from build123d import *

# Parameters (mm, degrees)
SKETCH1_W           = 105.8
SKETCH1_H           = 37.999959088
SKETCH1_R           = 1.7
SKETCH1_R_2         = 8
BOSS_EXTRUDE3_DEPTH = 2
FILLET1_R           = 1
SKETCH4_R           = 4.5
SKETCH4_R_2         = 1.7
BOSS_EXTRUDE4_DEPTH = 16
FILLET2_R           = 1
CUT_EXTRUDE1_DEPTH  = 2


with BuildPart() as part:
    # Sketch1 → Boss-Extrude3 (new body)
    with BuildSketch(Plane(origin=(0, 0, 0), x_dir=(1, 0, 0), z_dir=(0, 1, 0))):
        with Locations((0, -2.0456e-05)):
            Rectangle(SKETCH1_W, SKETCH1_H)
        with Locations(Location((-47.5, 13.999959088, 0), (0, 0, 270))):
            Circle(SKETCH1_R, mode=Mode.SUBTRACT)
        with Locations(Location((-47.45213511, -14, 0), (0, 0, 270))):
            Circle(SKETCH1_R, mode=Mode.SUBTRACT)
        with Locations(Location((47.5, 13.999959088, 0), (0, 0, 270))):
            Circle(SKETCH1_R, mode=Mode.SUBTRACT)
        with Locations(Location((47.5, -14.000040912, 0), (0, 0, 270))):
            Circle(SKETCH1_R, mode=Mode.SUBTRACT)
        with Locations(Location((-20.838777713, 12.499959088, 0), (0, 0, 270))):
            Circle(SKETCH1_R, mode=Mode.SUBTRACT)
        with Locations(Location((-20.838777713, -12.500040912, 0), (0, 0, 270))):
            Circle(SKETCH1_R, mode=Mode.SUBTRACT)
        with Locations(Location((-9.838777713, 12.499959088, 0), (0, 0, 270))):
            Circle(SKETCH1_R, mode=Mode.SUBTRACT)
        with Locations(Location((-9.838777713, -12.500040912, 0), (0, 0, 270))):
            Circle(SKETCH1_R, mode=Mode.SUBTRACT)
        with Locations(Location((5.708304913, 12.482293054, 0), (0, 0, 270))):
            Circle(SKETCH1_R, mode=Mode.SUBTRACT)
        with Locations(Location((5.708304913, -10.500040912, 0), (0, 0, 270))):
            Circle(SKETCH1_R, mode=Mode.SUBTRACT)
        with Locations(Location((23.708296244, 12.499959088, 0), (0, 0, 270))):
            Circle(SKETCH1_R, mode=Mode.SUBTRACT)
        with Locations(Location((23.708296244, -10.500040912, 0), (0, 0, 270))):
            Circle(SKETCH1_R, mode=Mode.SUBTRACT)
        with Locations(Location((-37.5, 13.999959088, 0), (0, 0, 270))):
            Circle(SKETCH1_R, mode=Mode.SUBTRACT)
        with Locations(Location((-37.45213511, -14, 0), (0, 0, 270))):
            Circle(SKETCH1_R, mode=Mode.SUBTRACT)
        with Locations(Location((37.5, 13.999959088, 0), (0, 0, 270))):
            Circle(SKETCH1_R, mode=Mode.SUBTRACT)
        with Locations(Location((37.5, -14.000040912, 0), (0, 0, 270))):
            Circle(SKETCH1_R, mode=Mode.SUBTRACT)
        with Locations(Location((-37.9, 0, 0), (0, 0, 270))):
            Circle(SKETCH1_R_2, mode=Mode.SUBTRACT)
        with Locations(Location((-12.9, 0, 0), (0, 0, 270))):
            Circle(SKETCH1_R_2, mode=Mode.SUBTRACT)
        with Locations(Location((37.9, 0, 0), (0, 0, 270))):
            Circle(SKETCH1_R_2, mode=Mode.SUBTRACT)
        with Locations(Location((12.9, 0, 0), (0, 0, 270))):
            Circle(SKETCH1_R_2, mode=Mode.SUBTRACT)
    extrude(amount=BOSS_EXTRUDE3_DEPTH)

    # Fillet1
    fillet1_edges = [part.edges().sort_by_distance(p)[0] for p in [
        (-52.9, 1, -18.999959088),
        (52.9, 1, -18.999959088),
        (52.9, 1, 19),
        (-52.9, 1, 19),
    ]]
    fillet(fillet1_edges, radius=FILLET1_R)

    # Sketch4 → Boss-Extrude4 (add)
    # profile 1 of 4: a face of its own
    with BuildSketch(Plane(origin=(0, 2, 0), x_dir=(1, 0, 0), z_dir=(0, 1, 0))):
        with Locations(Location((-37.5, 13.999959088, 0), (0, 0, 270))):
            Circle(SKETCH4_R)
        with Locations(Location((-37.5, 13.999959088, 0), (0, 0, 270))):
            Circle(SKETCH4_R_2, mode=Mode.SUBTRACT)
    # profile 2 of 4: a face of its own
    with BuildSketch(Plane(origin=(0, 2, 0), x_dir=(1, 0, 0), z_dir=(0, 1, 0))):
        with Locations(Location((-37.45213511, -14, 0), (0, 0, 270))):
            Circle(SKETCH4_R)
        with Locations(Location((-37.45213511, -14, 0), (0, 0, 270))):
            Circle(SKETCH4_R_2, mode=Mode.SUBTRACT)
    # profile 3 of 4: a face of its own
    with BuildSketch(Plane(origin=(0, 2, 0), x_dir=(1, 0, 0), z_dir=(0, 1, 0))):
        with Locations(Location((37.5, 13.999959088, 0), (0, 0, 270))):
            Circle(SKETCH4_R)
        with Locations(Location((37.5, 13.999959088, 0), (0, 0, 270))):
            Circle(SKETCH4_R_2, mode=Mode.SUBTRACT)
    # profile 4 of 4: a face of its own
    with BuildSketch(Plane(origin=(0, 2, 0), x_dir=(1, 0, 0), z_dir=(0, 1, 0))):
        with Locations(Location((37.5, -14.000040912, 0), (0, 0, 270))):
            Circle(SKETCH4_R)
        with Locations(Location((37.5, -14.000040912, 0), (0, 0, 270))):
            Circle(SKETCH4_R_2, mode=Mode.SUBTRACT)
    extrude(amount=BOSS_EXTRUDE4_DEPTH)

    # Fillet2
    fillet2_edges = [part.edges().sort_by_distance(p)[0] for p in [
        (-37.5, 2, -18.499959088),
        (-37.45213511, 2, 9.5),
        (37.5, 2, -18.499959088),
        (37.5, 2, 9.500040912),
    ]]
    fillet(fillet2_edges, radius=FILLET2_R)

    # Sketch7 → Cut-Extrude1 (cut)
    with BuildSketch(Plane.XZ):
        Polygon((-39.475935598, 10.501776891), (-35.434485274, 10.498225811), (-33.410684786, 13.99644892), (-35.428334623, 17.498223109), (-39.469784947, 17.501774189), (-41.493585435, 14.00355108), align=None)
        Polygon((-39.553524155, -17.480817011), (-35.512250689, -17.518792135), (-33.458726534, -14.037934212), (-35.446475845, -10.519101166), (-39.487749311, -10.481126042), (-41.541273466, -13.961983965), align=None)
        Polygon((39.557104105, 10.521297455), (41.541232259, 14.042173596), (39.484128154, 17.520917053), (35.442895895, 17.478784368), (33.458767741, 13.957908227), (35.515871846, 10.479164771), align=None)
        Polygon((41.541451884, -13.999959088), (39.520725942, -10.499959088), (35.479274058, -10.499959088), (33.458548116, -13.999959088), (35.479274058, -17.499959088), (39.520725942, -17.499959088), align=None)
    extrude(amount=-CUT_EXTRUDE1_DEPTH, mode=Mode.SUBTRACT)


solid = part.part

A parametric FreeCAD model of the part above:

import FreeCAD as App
import Part
import Sketcher
from FreeCAD import Vector
Q = App.Units.Quantity


def edges_at(feature, points):
    """Names of the edges that pass closest to the given points."""
    edges = feature.Shape.Edges
    near = lambda p: min(range(len(edges)), key=lambda i: edges[i].distToShape(Part.Vertex(*p))[0])
    return sorted({f"Edge{near(p) + 1}" for p in points})


def add_polygon(sketch, points):
    """Adds a closed chain of lines whose ends are joined by coincident constraints."""
    first, n = sketch.GeometryCount, len(points)
    for a, b in zip(points, points[1:] + points[:1]):
        sketch.addGeometry(Part.LineSegment(App.Vector(*a, 0), App.Vector(*b, 0)), False)
    for i in range(n):
        sketch.addConstraint(Sketcher.Constraint("Coincident", first + i, 2, first + (i + 1) % n, 1))

doc = App.newDocument("Part")
params = doc.addObject("Spreadsheet::Sheet", "Params")
for row, (alias, value) in enumerate([
    ("sketch1_diameter", "16 mm"),
    ("sketch1_diameter2", "3.4 mm"),
    ("sketch1_width", "105.8 mm"),
    ("pad1_length", "2 mm"),
    ("fillet_radius", "1 mm"),
    ("sketch2_diameter", "9 mm"),
    ("sketch2_diameter2", "3.4 mm"),
    ("pad2_length", "16 mm"),
    ("fillet2_radius", "1 mm"),
    ("pocket1_length", "2 mm"),
], start=1):
    params.set(f"A{row}", alias)
    params.set(f"B{row}", "=" + value)
    params.setAlias(f"B{row}", alias)

body = doc.addObject("PartDesign::Body", "Body")

sketch1 = body.newObject("Sketcher::SketchObject", "Sketch")
sketch1.AttachmentSupport = (doc.getObject("XZ_Plane"), [""])
sketch1.MapMode = "FlatFace"
add_polygon(sketch1, [(-52.9, -19), (-52.9, 19), (52.9, 19), (52.9, -19)])
sketch1.addGeometry(Part.Circle(Vector(-47.5, 14, 0), Vector(0, 0, 1), 1.7), False)
sketch1.addGeometry(Part.Circle(Vector(-37.5, 14, 0), Vector(0, 0, 1), 1.7), False)
sketch1.addGeometry(Part.Circle(Vector(-20.8, 12.5, 0), Vector(0, 0, 1), 1.7), False)
sketch1.addGeometry(Part.Circle(Vector(-9.8, 12.5, 0), Vector(0, 0, 1), 1.7), False)
sketch1.addGeometry(Part.Circle(Vector(5.7, 10.5, 0), Vector(0, 0, 1), 1.7), False)
sketch1.addGeometry(Part.Circle(Vector(23.7, 10.5, 0), Vector(0, 0, 1), 1.7), False)
sketch1.addGeometry(Part.Circle(Vector(37.5, 14, 0), Vector(0, 0, 1), 1.7), False)
sketch1.addGeometry(Part.Circle(Vector(47.5, 14, 0), Vector(0, 0, 1), 1.7), False)
sketch1.addGeometry(Part.Circle(Vector(-37.9, 0, 0), Vector(0, 0, 1), 8), False)
sketch1.addGeometry(Part.Circle(Vector(-12.9, 0, 0), Vector(0, 0, 1), 8), False)
sketch1.addGeometry(Part.Circle(Vector(-47.5, -14, 0), Vector(0, 0, 1), 1.7), False)
sketch1.addGeometry(Part.Circle(Vector(-37.5, -14, 0), Vector(0, 0, 1), 1.7), False)
sketch1.addGeometry(Part.Circle(Vector(-20.8, -12.5, 0), Vector(0, 0, 1), 1.7), False)
sketch1.addGeometry(Part.Circle(Vector(-9.8, -12.5, 0), Vector(0, 0, 1), 1.7), False)
sketch1.addGeometry(Part.Circle(Vector(12.9, 0, 0), Vector(0, 0, 1), 8), False)
sketch1.addGeometry(Part.Circle(Vector(37.9, 0, 0), Vector(0, 0, 1), 8), False)
sketch1.addGeometry(Part.Circle(Vector(5.7, -12.5, 0), Vector(0, 0, 1), 1.7), False)
sketch1.addGeometry(Part.Circle(Vector(23.7, -12.5, 0), Vector(0, 0, 1), 1.7), False)
sketch1.addGeometry(Part.Circle(Vector(37.5, -14, 0), Vector(0, 0, 1), 1.7), False)
sketch1.addGeometry(Part.Circle(Vector(47.5, -14, 0), Vector(0, 0, 1), 1.7), False)
sketch1.addConstraint(Sketcher.Constraint("Vertical", 0))
sketch1.addConstraint(Sketcher.Constraint("Horizontal", 1))
sketch1.addConstraint(Sketcher.Constraint("Vertical", 2))
sketch1.addConstraint(Sketcher.Constraint("Horizontal", 3))
sketch1.addConstraint(Sketcher.Constraint("Equal", 4, 5))
sketch1.addConstraint(Sketcher.Constraint("Equal", 5, 6))
sketch1.addConstraint(Sketcher.Constraint("Equal", 6, 7))
sketch1.addConstraint(Sketcher.Constraint("Equal", 7, 8))
sketch1.addConstraint(Sketcher.Constraint("Equal", 8, 9))
sketch1.addConstraint(Sketcher.Constraint("Equal", 9, 10))
sketch1.addConstraint(Sketcher.Constraint("Equal", 10, 11))
sketch1.addConstraint(Sketcher.Constraint("Equal", 12, 13))
sketch1.addConstraint(Sketcher.Constraint("Equal", 11, 14))
sketch1.addConstraint(Sketcher.Constraint("Equal", 14, 15))
sketch1.addConstraint(Sketcher.Constraint("Equal", 15, 16))
sketch1.addConstraint(Sketcher.Constraint("Equal", 16, 17))
sketch1.addConstraint(Sketcher.Constraint("Equal", 13, 18))
sketch1.addConstraint(Sketcher.Constraint("Equal", 18, 19))
sketch1.addConstraint(Sketcher.Constraint("Equal", 17, 20))
sketch1.addConstraint(Sketcher.Constraint("Equal", 20, 21))
sketch1.addConstraint(Sketcher.Constraint("Equal", 21, 22))
sketch1.addConstraint(Sketcher.Constraint("Equal", 22, 23))
sketch1.addConstraint(Sketcher.Constraint("Symmetric", 13, 3, 18, 3, -1, 1))
sketch1.addConstraint(Sketcher.Constraint("Symmetric", 12, 3, 19, 3, -1, 1))
sketch1.addConstraint(Sketcher.Constraint("Symmetric", 15, 3, 22, 3, -2))
sketch1.addConstraint(Sketcher.Constraint("Symmetric", 14, 3, 23, 3, -2))
sketch1.addConstraint(Sketcher.Constraint("PointOnObject", 12, 3, -1))
sketch1.addConstraint(Sketcher.Constraint("PointOnObject", 13, 3, -1))
sketch1.addConstraint(Sketcher.Constraint("Horizontal", 4, 3, 5, 3))
sketch1.addConstraint(Sketcher.Constraint("Horizontal", 6, 3, 7, 3))
sketch1.addConstraint(Sketcher.Constraint("Horizontal", 8, 3, 9, 3))
sketch1.addConstraint(Sketcher.Constraint("Horizontal", 10, 3, 11, 3))
sketch1.addConstraint(Sketcher.Constraint("Horizontal", 14, 3, 15, 3))
sketch1.addConstraint(Sketcher.Constraint("Horizontal", 16, 3, 17, 3))
sketch1.addConstraint(Sketcher.Constraint("Horizontal", 17, 3, 21, 3))
sketch1.addConstraint(Sketcher.Constraint("Vertical", 6, 3, 16, 3))
sketch1.addConstraint(Sketcher.Constraint("Vertical", 7, 3, 17, 3))
sketch1.addConstraint(Sketcher.Constraint("Vertical", 8, 3, 20, 3))
sketch1.addConstraint(Sketcher.Constraint("Vertical", 9, 3, 21, 3))
sketch1.addConstraint(Sketcher.Constraint("Vertical", 10, 3, 22, 3))
sketch1.addConstraint(Sketcher.Constraint("Vertical", 11, 3, 23, 3))
sketch1.addConstraint(Sketcher.Constraint("Diameter", 12, Q("16 mm")))
sketch1.addConstraint(Sketcher.Constraint("Diameter", 4, Q("3.4 mm")))
sketch1.addConstraint(Sketcher.Constraint("DistanceX", 1, 1, 1, 2, Q("105.8 mm")))
sketch1.addConstraint(Sketcher.Constraint("DistanceY", -1, 1, 4, 3, Q("14 mm")))
sketch1.addConstraint(Sketcher.Constraint("DistanceY", -1, 1, 0, 2, Q("19 mm")))
sketch1.addConstraint(Sketcher.Constraint("DistanceX", 4, 3, 5, 3, Q("10 mm")))
sketch1.addConstraint(Sketcher.Constraint("DistanceX", 6, 3, 7, 3, Q("11 mm")))
sketch1.addConstraint(Sketcher.Constraint("DistanceY", 8, 3, 7, 3, Q("2 mm")))
sketch1.addConstraint(Sketcher.Constraint("DistanceX", 10, 3, 11, 3, Q("10 mm")))
sketch1.addConstraint(Sketcher.Constraint("DistanceX", 12, 3, 13, 3, Q("25 mm")))
sketch1.addConstraint(Sketcher.Constraint("DistanceY", 16, 3, 6, 3, Q("25 mm")))
sketch1.addConstraint(Sketcher.Constraint("DistanceY", 22, 3, 10, 3, Q("28 mm")))
sketch1.addConstraint(Sketcher.Constraint("DistanceX", 0, 2, 12, 3, Q("15 mm")))
sketch1.addConstraint(Sketcher.Constraint("DistanceX", 19, 3, 1, 2, Q("15 mm")))
sketch1.addConstraint(Sketcher.Constraint("DistanceY", 2, 2, 23, 3, Q("5 mm")))
sketch1.addConstraint(Sketcher.Constraint("DistanceX", -1, 1, 10, 3, Q("37.5 mm")))
sketch1.addConstraint(Sketcher.Constraint("DistanceY", 9, 3, 10, 3, Q("3.5 mm")))
sketch1.addConstraint(Sketcher.Constraint("DistanceY", 0, 1, 0, 2, Q("37.999959 mm")))
sketch1.addConstraint(Sketcher.Constraint("DistanceX", 5, 3, 8, 3, Q("43.16044 mm")))
sketch1.addConstraint(Sketcher.Constraint("DistanceX", 8, 3, 9, 3, Q("17.999991 mm")))
sketch1.addConstraint(Sketcher.Constraint("DistanceX", 4, 3, -1, 1, Q("47.452135 mm")))
sketch1.addConstraint(Sketcher.Constraint("DistanceX", 6, 3, -1, 1, Q("20.838778 mm")))
sketch1.addConstraint(Sketcher.Constraint("DistanceY", 20, 3, -1, 1, Q("12.482293 mm")))
sketch1.setExpression("Constraints[45]", "Params.sketch1_diameter")
sketch1.setExpression("Constraints[46]", "Params.sketch1_diameter2")
sketch1.setExpression("Constraints[47]", "Params.sketch1_width")
pad1 = body.newObject("PartDesign::Pad", "Pad")
pad1.Profile = sketch1
pad1.setExpression("Length", "Params.pad1_length")
pad1.Reversed = True
doc.recompute()

fillet = body.newObject("PartDesign::Fillet", "Fillet")
fillet.Base = (pad1, edges_at(pad1, [
    (-52.9, 1, -19),
    (52.9, 1, -19),
    (52.9, 1, 19),
    (-52.9, 1, 19),
]))
fillet.setExpression("Radius", "Params.fillet_radius")

sketch2 = body.newObject("Sketcher::SketchObject", "Sketch001")
sketch2.AttachmentSupport = (doc.getObject("XZ_Plane"), [""])
sketch2.MapMode = "FlatFace"
sketch2.AttachmentOffset = App.Placement(Vector(0, 0, -2), App.Rotation())
sketch2.addGeometry(Part.Circle(Vector(-37.5, -14, 0), Vector(0, 0, 1), 4.5), False)
sketch2.addGeometry(Part.Circle(Vector(-37.5, -14, 0), Vector(0, 0, 1), 1.7), False)
sketch2.addGeometry(Part.Circle(Vector(-37.5, 14, 0), Vector(0, 0, 1), 4.5), False)
sketch2.addGeometry(Part.Circle(Vector(-37.5, 14, 0), Vector(0, 0, 1), 1.7), False)
sketch2.addGeometry(Part.Circle(Vector(37.5, -14, 0), Vector(0, 0, 1), 4.5), False)
sketch2.addGeometry(Part.Circle(Vector(37.5, -14, 0), Vector(0, 0, 1), 1.7), False)
sketch2.addGeometry(Part.Circle(Vector(37.5, 14, 0), Vector(0, 0, 1), 4.5), False)
sketch2.addGeometry(Part.Circle(Vector(37.5, 14, 0), Vector(0, 0, 1), 1.7), False)
sketch2.addConstraint(Sketcher.Constraint("Coincident", 1, 3, 0, 3))
sketch2.addConstraint(Sketcher.Constraint("Coincident", 3, 3, 2, 3))
sketch2.addConstraint(Sketcher.Constraint("Coincident", 5, 3, 4, 3))
sketch2.addConstraint(Sketcher.Constraint("Coincident", 7, 3, 6, 3))
sketch2.addConstraint(Sketcher.Constraint("Equal", 0, 2))
sketch2.addConstraint(Sketcher.Constraint("Equal", 1, 3))
sketch2.addConstraint(Sketcher.Constraint("Equal", 2, 4))
sketch2.addConstraint(Sketcher.Constraint("Equal", 3, 5))
sketch2.addConstraint(Sketcher.Constraint("Equal", 4, 6))
sketch2.addConstraint(Sketcher.Constraint("Equal", 5, 7))
sketch2.addConstraint(Sketcher.Constraint("Symmetric", 0, 3, 4, 3, -2))
sketch2.addConstraint(Sketcher.Constraint("Vertical", 5, 3, 6, 3))
sketch2.addConstraint(Sketcher.Constraint("Diameter", 0, Q("9 mm")))
sketch2.addConstraint(Sketcher.Constraint("Diameter", 1, Q("3.4 mm")))
sketch2.addConstraint(Sketcher.Constraint("DistanceY", -1, 1, 2, 3, Q("14 mm")))
sketch2.addConstraint(Sketcher.Constraint("DistanceX", 0, 3, 4, 3, Q("75 mm")))
sketch2.addConstraint(Sketcher.Constraint("DistanceY", 4, 3, 6, 3, Q("28 mm")))
sketch2.addConstraint(Sketcher.Constraint("DistanceY", 0, 3, -1, 1, Q("13.999959 mm")))
sketch2.addConstraint(Sketcher.Constraint("DistanceX", 2, 3, -1, 1, Q("37.452135 mm")))
sketch2.setExpression("Constraints[12]", "Params.sketch2_diameter")
sketch2.setExpression("Constraints[13]", "Params.sketch2_diameter2")
pad2 = body.newObject("PartDesign::Pad", "Pad001")
pad2.Profile = sketch2
pad2.setExpression("Length", "Params.pad2_length")
pad2.Reversed = True
doc.recompute()

fillet2 = body.newObject("PartDesign::Fillet", "Fillet001")
fillet2.Base = (pad2, edges_at(pad2, [
    (-37.5, 2, -18.5),
    (-37.452, 2, 9.5),
    (37.5, 2, -18.5),
    (37.5, 2, 9.5),
]))
fillet2.setExpression("Radius", "Params.fillet2_radius")

sketch3 = body.newObject("Sketcher::SketchObject", "Sketch002")
sketch3.AttachmentSupport = (doc.getObject("XZ_Plane"), [""])
sketch3.MapMode = "FlatFace"
add_polygon(sketch3, [(-39.5, 10.5), (-35.4, 10.5), (-33.4, 14), (-35.4, 17.5), (-39.5, 17.5), (-41.5, 14)])
add_polygon(sketch3, [(-39.6, -17.5), (-35.5, -17.5), (-33.5, -14), (-35.4, -10.5), (-39.5, -10.5), (-41.5, -14)])
add_polygon(sketch3, [(39.6, 10.5), (41.5, 14), (39.5, 17.5), (35.4, 17.5), (33.5, 14), (35.5, 10.5)])
add_polygon(sketch3, [(41.5, -14), (39.5, -10.5), (35.5, -10.5), (33.5, -14), (35.5, -17.5), (39.5, -17.5)])
sketch3.addConstraint(Sketcher.Constraint("Horizontal", 19))
sketch3.addConstraint(Sketcher.Constraint("Horizontal", 22))
sketch3.addConstraint(Sketcher.Constraint("Parallel", 0, 3))
sketch3.addConstraint(Sketcher.Constraint("Parallel", 1, 4))
sketch3.addConstraint(Sketcher.Constraint("Parallel", 2, 5))
sketch3.addConstraint(Sketcher.Constraint("Parallel", 6, 9))
sketch3.addConstraint(Sketcher.Constraint("Parallel", 7, 10))
sketch3.addConstraint(Sketcher.Constraint("Parallel", 8, 11))
sketch3.addConstraint(Sketcher.Constraint("Parallel", 12, 15))
sketch3.addConstraint(Sketcher.Constraint("Parallel", 13, 16))
sketch3.addConstraint(Sketcher.Constraint("Parallel", 14, 17))
sketch3.addConstraint(Sketcher.Constraint("Parallel", 18, 21))
sketch3.addConstraint(Sketcher.Constraint("Parallel", 20, 23))
sketch3.addConstraint(Sketcher.Constraint("Horizontal", 20, 2, 23, 2))
sketch3.addConstraint(Sketcher.Constraint("Vertical", 19, 2, 21, 2))
sketch3.addConstraint(Sketcher.Constraint("Vertical", 18, 2, 22, 2))
sketch3.addConstraint(Sketcher.Constraint("Equal", 0, 1))
sketch3.addConstraint(Sketcher.Constraint("Equal", 1, 2))
sketch3.addConstraint(Sketcher.Constraint("Equal", 2, 3))
sketch3.addConstraint(Sketcher.Constraint("Equal", 5, 6))
sketch3.addConstraint(Sketcher.Constraint("Equal", 6, 7))
sketch3.addConstraint(Sketcher.Constraint("Equal", 7, 8))
sketch3.addConstraint(Sketcher.Constraint("Equal", 8, 9))
sketch3.addConstraint(Sketcher.Constraint("Equal", 11, 12))
sketch3.addConstraint(Sketcher.Constraint("Equal", 12, 13))
sketch3.addConstraint(Sketcher.Constraint("Equal", 13, 14))
sketch3.addConstraint(Sketcher.Constraint("Equal", 14, 15))
sketch3.addConstraint(Sketcher.Constraint("Equal", 17, 18))
sketch3.addConstraint(Sketcher.Constraint("Angle", 18, Q("120 deg")))
sketch3.addConstraint(Sketcher.Constraint("DistanceY", 21, 2, 19, 2, Q("7 mm")))
sketch3.addConstraint(Sketcher.Constraint("DistanceX", 19, 2, 19, 1, Q("4.041452 mm")))
sketch3.addConstraint(Sketcher.Constraint("DistanceY", 8, 2, -1, 1, Q("10.519101 mm")))
sketch3.addConstraint(Sketcher.Constraint("DistanceX", 0, 2, 1, 2, Q("2.0238 mm")))
sketch3.addConstraint(Sketcher.Constraint("DistanceX", 3, 2, 1, 2, Q("6.0591 mm")))
sketch3.addConstraint(Sketcher.Constraint("DistanceX", 9, 2, 6, 2, Q("3.975499 mm")))
sketch3.addConstraint(Sketcher.Constraint("DistanceY", -1, 1, 1, 2, Q("13.996449 mm")))
sketch3.addConstraint(Sketcher.Constraint("DistanceY", -1, 1, 4, 2, Q("14.003551 mm")))
sketch3.addConstraint(Sketcher.Constraint("DistanceX", 6, 2, -1, 1, Q("35.512251 mm")))
sketch3.addConstraint(Sketcher.Constraint("DistanceX", -1, 1, 13, 2, Q("39.484128 mm")))
sketch3.addConstraint(Sketcher.Constraint("DistanceY", -1, 1, 15, 2, Q("13.957908 mm")))
sketch3.addConstraint(Sketcher.Constraint("DistanceX", -1, 1, 16, 2, Q("35.515872 mm")))
sketch3.addConstraint(Sketcher.Constraint("DistanceY", 18, 2, -1, 1, Q("10.499959 mm")))
sketch3.addConstraint(Sketcher.Constraint("DistanceX", -1, 1, 20, 2, Q("33.458548 mm")))
sketch3.addConstraint(Sketcher.Constraint("DistanceY", 6, 2, 5, 2, Q("28.020569 mm")))
sketch3.addConstraint(Sketcher.Constraint("DistanceX", 0, 2, 7, 2, Q("1.975759 mm")))
sketch3.addConstraint(Sketcher.Constraint("DistanceY", 7, 2, 9, 2, Q("3.556808 mm")))
sketch3.addConstraint(Sketcher.Constraint("DistanceY", 12, 2, 2, 2, Q("3.45605 mm")))
sketch3.addConstraint(Sketcher.Constraint("DistanceX", 7, 2, 12, 2, Q("74.999959 mm")))
pocket1 = body.newObject("PartDesign::Pocket", "Pocket")
pocket1.Profile = sketch3
pocket1.setExpression("Length", "Params.pocket1_length")

doc.recompute()
